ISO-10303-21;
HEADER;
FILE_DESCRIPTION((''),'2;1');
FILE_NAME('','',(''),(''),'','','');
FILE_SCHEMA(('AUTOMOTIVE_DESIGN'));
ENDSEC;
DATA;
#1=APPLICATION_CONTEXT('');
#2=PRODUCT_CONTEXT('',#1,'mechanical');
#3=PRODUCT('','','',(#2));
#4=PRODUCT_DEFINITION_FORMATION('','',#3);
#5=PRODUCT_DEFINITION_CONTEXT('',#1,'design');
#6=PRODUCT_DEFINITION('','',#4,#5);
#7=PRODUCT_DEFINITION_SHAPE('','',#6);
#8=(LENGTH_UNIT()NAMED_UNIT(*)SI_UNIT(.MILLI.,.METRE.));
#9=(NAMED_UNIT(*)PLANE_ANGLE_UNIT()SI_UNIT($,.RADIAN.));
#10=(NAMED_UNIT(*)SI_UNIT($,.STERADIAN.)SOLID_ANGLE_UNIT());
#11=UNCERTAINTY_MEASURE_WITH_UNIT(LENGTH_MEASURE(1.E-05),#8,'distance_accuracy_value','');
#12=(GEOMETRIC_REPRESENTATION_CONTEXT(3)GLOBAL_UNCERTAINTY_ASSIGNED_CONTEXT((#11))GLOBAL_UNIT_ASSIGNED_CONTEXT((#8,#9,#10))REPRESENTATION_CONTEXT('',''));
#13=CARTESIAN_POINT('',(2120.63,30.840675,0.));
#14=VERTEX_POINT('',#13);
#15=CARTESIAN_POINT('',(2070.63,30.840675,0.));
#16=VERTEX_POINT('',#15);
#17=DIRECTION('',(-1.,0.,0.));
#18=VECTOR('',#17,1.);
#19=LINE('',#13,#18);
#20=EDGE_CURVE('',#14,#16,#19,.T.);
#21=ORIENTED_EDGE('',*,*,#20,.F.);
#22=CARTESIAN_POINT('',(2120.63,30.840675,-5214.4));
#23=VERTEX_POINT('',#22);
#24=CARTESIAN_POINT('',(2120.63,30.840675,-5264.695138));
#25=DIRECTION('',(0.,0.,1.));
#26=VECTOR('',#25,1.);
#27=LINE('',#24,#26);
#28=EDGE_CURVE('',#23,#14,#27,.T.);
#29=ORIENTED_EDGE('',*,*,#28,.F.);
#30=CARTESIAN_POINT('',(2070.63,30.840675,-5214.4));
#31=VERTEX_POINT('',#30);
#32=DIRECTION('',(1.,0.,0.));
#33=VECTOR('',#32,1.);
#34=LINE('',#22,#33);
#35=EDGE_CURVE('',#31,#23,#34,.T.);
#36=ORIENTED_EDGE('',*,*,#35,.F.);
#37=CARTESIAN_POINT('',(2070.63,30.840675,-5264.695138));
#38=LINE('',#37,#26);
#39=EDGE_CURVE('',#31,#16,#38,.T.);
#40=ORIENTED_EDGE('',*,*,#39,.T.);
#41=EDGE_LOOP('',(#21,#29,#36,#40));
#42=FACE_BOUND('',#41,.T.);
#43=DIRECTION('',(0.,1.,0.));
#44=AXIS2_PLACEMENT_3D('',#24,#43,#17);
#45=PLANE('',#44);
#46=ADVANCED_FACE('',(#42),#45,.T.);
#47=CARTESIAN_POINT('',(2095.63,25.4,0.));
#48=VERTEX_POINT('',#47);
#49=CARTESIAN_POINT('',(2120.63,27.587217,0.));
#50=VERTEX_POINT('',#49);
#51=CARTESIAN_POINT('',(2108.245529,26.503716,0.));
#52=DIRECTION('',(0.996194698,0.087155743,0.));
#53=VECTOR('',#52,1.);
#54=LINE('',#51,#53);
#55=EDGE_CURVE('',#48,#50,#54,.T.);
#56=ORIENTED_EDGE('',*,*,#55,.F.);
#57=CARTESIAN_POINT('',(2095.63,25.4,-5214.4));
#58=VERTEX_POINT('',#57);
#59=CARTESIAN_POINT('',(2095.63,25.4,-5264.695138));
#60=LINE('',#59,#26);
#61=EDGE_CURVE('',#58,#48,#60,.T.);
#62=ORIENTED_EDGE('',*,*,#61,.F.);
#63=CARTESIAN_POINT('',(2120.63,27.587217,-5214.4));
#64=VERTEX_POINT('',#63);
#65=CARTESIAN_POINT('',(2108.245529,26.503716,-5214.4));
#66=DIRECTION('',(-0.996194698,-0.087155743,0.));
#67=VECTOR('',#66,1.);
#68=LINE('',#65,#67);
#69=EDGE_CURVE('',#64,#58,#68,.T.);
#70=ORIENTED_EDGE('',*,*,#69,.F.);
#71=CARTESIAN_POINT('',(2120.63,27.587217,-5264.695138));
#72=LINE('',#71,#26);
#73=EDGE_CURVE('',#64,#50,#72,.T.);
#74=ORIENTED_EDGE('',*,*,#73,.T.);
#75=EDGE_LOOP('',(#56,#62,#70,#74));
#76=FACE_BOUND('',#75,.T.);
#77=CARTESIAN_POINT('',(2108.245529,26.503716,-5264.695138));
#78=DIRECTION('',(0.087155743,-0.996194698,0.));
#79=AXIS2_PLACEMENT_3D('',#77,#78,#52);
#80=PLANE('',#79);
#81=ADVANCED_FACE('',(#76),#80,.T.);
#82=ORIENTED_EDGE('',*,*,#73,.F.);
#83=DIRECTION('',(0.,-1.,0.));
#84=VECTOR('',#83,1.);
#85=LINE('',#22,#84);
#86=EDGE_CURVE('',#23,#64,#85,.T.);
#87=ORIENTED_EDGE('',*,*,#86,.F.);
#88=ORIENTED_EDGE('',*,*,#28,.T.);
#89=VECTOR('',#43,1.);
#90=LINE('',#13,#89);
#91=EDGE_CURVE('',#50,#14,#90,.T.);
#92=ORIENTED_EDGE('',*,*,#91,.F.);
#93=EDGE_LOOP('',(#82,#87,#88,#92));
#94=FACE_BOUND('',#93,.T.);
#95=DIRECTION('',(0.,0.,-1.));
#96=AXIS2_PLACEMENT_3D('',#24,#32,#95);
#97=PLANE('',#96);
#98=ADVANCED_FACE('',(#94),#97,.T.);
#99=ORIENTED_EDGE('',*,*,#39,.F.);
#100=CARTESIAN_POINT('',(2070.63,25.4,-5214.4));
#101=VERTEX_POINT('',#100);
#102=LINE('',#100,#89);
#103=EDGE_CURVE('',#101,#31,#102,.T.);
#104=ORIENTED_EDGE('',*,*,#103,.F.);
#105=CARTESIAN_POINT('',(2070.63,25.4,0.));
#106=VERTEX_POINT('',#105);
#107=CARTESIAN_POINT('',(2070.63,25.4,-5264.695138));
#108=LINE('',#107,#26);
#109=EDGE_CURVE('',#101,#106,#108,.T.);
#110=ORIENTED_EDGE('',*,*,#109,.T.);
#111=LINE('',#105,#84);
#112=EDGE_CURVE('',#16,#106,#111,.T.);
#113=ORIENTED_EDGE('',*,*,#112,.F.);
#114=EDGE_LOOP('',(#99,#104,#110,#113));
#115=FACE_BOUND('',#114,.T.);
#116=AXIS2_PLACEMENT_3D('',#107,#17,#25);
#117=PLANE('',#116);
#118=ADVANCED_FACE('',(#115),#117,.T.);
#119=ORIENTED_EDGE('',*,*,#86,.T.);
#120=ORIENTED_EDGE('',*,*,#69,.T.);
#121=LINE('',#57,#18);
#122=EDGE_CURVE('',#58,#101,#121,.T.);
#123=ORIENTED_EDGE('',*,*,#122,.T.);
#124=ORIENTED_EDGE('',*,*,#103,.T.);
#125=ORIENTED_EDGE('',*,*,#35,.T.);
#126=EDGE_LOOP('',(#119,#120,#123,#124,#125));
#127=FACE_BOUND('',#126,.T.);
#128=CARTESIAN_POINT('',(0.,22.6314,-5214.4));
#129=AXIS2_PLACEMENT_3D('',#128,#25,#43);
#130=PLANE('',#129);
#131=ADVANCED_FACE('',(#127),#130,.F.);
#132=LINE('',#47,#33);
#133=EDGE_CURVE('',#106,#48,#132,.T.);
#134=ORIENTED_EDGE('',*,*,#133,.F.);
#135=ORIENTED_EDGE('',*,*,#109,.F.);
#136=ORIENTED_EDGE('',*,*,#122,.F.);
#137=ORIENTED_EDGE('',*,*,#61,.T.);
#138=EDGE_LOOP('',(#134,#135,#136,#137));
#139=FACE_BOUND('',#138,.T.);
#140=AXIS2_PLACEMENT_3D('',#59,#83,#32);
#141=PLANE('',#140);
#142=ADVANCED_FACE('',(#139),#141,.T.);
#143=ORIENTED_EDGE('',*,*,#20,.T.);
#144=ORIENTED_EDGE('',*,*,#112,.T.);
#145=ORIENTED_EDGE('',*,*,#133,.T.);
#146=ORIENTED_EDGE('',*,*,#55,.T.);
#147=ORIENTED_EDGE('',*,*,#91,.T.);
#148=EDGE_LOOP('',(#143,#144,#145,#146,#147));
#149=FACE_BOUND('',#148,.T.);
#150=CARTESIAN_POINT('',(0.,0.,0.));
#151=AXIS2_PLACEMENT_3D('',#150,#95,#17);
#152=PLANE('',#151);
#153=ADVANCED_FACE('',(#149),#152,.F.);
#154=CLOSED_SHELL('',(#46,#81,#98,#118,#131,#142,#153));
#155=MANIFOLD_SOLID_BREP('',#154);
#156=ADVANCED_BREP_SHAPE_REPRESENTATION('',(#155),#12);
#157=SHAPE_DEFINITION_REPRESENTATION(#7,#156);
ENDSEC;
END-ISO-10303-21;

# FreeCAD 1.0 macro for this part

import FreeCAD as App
import Part
import Sketcher
from FreeCAD import Vector
Q = App.Units.Quantity

doc = App.newDocument("Part")
params = doc.addObject("Spreadsheet::Sheet", "Params")
for row, (alias, value) in enumerate([
    ("sketch1_width", "25 mm"),
    ("sketch1_width2", "50 mm"),
    ("pad1_length", "5214.4 mm"),
], start=1):
    params.set(f"A{row}", alias)
    params.set(f"B{row}", "=" + value)
    params.setAlias(f"B{row}", alias)

body = doc.addObject("PartDesign::Body", "Body")

# Sketch on XY plane
sketch1 = body.newObject("Sketcher::SketchObject", "Sketch")
sketch1.AttachmentSupport = (doc.getObject("XY_Plane"), [""])
sketch1.MapMode = "FlatFace"
sketch1.addGeometry([
    Part.LineSegment(Vector(2070.6, 25.4, 0), Vector(2095.6, 25.4, 0)),  # 0
    Part.LineSegment(Vector(2095.6, 25.4, 0), Vector(2108.2, 26.5, 0)),  # 1
    Part.LineSegment(Vector(2108.2, 26.5, 0), Vector(2120.6, 27.6, 0)),  # 2
    Part.LineSegment(Vector(2120.6, 27.6, 0), Vector(2120.6, 30.8, 0)),  # 3
    Part.LineSegment(Vector(2120.6, 30.8, 0), Vector(2070.6, 30.8, 0)),  # 4
    Part.LineSegment(Vector(2070.6, 30.8, 0), Vector(2070.6, 25.4, 0)),  # 5
], False)
sketch1.addConstraint([
    Sketcher.Constraint("Coincident", 0, 2, 1, 1),
    Sketcher.Constraint("Coincident", 1, 2, 2, 1),
    Sketcher.Constraint("Coincident", 2, 2, 3, 1),
    Sketcher.Constraint("Coincident", 3, 2, 4, 1),
    Sketcher.Constraint("Coincident", 4, 2, 5, 1),
    Sketcher.Constraint("Coincident", 5, 2, 0, 1),
    Sketcher.Constraint("Horizontal", 0),
    Sketcher.Constraint("Vertical", 3),
    Sketcher.Constraint("Horizontal", 4),
    Sketcher.Constraint("Vertical", 5),
    Sketcher.Constraint("Parallel", 1, 2),
    Sketcher.Constraint("DistanceX", 0, 1, 0, 2, Q("25 mm")),
    Sketcher.Constraint("DistanceX", 4, 2, 4, 1, Q("50 mm")),
    Sketcher.Constraint("Angle", 1, Q("5 deg")),
    Sketcher.Constraint("DistanceY", -1, 1, 0, 2, Q("25.4 mm")),
    Sketcher.Constraint("DistanceX", -1, 1, 0, 2, Q("2095.63 mm")),
    Sketcher.Constraint("DistanceY", 3, 1, 3, 2, Q("3.253458 mm")),
    Sketcher.Constraint("DistanceY", 1, 2, 2, 2, Q("1.083501 mm")),
])
sketch1.setExpression("Constraints[11]", "Params.sketch1_width")
sketch1.setExpression("Constraints[12]", "Params.sketch1_width2")
pad1 = body.newObject("PartDesign::Pad", "Pad")
pad1.Profile = sketch1
pad1.setExpression("Length", "Params.pad1_length")
pad1.Reversed = True

doc.recompute()
